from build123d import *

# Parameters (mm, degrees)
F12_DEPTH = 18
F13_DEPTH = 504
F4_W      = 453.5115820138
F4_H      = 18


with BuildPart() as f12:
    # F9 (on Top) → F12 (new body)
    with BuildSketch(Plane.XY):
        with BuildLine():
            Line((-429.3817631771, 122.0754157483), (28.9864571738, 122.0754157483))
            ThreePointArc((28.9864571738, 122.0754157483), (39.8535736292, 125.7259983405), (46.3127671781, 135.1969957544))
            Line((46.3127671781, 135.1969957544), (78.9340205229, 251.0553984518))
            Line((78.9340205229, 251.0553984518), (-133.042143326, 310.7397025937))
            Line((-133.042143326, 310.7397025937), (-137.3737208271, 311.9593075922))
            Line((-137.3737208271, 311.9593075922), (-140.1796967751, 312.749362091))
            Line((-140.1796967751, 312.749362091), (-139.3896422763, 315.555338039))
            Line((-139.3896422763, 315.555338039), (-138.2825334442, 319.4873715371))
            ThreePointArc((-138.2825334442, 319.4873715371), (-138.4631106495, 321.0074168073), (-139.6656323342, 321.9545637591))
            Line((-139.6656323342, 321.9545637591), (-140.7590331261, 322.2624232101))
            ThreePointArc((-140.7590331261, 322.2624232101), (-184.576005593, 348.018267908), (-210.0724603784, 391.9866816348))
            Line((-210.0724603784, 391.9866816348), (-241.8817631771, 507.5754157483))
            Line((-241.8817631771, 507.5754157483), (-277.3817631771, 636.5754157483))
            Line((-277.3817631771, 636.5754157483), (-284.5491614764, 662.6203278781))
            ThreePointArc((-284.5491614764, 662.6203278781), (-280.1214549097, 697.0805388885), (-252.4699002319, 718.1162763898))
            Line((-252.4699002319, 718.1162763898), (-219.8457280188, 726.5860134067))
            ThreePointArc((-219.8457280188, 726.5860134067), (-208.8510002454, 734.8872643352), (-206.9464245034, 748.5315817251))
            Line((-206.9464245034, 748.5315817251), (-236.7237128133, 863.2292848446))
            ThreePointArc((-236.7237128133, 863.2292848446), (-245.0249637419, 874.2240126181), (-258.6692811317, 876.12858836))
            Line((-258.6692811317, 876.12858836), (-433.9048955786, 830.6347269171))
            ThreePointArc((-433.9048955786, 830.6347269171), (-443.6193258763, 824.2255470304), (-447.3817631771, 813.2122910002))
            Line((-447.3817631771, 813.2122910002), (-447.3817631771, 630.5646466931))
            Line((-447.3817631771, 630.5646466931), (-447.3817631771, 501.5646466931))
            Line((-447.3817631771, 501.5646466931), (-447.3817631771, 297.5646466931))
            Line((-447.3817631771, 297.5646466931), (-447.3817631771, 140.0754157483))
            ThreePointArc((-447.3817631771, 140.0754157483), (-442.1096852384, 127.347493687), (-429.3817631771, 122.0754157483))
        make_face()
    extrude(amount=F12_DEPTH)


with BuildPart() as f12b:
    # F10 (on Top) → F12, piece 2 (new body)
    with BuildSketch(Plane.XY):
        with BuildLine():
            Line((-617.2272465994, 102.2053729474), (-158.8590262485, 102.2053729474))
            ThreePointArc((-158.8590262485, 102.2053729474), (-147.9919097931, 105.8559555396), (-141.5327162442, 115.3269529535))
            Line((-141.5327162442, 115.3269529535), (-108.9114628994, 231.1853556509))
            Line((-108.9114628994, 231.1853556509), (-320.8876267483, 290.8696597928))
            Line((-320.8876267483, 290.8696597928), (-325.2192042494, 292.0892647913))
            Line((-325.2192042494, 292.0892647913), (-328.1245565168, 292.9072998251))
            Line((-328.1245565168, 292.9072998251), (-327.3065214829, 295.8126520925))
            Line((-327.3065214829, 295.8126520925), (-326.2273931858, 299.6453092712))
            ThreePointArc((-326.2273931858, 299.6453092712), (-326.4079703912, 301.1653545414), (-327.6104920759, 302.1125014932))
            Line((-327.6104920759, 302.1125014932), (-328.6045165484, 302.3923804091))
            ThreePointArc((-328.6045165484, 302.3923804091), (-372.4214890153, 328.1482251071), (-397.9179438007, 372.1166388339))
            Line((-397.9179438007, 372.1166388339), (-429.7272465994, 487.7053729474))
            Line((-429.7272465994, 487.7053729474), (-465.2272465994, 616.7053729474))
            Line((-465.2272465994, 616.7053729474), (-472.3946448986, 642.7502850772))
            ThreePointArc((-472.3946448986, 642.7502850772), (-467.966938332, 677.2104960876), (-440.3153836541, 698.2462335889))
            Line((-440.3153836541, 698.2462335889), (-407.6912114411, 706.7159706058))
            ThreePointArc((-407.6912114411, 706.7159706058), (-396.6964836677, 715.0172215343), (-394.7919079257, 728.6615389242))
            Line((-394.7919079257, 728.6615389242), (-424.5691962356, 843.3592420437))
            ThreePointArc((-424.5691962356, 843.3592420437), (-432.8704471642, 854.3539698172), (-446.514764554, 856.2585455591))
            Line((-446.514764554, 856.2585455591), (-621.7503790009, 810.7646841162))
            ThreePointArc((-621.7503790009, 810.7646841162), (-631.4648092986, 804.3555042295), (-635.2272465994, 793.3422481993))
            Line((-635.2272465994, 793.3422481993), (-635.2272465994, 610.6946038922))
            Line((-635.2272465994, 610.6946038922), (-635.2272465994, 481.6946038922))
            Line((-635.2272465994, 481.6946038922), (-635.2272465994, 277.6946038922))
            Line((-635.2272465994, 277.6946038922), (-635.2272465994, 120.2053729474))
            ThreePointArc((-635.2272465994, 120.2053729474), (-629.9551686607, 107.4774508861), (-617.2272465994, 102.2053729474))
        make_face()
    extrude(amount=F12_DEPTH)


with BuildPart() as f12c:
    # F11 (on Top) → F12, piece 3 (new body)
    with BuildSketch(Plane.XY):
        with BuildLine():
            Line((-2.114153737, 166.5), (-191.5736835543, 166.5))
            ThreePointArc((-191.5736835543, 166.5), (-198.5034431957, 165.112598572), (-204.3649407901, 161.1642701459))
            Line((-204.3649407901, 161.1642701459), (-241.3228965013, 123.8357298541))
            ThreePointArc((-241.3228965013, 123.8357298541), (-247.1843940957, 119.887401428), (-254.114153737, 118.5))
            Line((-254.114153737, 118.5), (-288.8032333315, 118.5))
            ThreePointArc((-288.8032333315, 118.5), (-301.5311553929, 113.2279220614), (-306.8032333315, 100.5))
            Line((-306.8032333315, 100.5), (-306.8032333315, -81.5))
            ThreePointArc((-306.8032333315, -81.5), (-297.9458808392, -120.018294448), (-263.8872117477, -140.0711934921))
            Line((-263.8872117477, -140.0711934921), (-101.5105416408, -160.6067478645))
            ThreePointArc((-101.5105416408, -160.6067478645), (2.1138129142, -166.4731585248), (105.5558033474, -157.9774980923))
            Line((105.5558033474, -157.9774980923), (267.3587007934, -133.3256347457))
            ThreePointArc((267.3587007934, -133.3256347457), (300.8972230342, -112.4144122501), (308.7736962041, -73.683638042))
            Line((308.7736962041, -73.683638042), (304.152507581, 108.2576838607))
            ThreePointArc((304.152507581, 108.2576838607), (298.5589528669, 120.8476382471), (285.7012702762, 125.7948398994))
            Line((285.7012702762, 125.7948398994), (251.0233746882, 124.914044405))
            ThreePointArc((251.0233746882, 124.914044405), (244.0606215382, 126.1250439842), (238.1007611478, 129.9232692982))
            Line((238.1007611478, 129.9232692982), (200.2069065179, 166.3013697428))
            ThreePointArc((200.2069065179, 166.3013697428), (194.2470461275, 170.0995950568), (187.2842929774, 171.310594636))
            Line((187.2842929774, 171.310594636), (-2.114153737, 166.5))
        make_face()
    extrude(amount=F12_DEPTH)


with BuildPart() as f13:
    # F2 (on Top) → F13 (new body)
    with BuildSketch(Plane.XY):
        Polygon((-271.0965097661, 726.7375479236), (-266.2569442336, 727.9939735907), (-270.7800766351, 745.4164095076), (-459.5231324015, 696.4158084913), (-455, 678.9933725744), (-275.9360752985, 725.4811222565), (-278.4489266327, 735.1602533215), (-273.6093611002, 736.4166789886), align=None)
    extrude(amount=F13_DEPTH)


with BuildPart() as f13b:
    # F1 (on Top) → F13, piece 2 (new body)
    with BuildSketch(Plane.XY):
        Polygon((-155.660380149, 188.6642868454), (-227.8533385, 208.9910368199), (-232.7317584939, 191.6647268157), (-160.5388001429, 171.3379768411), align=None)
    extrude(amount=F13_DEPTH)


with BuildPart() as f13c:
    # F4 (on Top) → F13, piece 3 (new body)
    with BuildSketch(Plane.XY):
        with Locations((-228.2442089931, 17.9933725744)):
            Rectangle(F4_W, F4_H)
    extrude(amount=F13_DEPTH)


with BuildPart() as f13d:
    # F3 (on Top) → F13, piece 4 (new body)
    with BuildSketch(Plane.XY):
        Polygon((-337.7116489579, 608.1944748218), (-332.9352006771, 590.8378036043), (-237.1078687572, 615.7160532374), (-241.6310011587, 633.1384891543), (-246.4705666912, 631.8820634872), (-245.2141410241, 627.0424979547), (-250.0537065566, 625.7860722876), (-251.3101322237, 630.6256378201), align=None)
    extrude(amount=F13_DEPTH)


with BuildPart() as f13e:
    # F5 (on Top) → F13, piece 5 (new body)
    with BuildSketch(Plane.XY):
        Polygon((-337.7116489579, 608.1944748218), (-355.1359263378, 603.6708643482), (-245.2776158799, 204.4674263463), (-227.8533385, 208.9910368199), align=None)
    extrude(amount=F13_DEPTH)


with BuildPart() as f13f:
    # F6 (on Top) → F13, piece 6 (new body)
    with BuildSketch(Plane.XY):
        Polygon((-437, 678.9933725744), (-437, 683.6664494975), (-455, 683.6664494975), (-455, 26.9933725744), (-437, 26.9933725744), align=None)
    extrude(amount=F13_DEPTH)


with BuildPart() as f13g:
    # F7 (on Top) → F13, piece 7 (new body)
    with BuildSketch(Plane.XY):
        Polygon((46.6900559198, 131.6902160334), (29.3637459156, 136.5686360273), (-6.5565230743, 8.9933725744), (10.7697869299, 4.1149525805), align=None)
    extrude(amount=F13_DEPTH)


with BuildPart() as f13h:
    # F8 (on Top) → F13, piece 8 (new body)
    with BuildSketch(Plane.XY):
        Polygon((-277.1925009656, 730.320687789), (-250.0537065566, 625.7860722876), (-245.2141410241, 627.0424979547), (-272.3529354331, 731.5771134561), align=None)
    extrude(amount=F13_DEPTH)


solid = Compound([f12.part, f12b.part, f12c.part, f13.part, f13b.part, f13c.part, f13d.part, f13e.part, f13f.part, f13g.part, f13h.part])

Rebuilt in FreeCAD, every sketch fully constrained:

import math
import FreeCAD as App
import Part
import Sketcher
from FreeCAD import Vector


def add_polygon(sketch, points):
    """Adds a closed chain of lines whose ends are joined by coincident constraints."""
    first, n = sketch.GeometryCount, len(points)
    for a, b in zip(points, points[1:] + points[:1]):
        sketch.addGeometry(Part.LineSegment(App.Vector(*a, 0), App.Vector(*b, 0)), False)
    for i in range(n):
        sketch.addConstraint(Sketcher.Constraint("Coincident", first + i, 2, first + (i + 1) % n, 1))

doc = App.newDocument("Part")
body = doc.addObject("PartDesign::Body", "Body")

# Sketch on XY plane
sketch1 = doc.addObject("Sketcher::SketchObject", "Sketch")
body.addObject(sketch1)
sketch1.AttachmentSupport = (doc.XY_Plane, [""])
sketch1.MapMode = "FlatFace"
sketch1.addGeometry(Part.LineSegment(Vector(-429.381763, 122.075416, 0), Vector(28.986457, 122.075416, 0)), False)
sketch1.addGeometry(Part.ArcOfCircle(Part.Circle(Vector(28.986457, 140.075416, 0), Vector(0, 0, 1), 18), math.radians(-90), math.radians(-15.72517)), False)
sketch1.addGeometry(Part.LineSegment(Vector(46.312767, 135.196996, 0), Vector(78.934021, 251.055398, 0)), False)
sketch1.addGeometry(Part.LineSegment(Vector(78.934021, 251.055398, 0), Vector(-133.042143, 310.739703, 0)), False)
sketch1.addGeometry(Part.LineSegment(Vector(-133.042143, 310.739703, 0), Vector(-137.373721, 311.959308, 0)), False)
sketch1.addGeometry(Part.LineSegment(Vector(-137.373721, 311.959308, 0), Vector(-140.179697, 312.749362, 0)), False)
sketch1.addGeometry(Part.LineSegment(Vector(-140.179697, 312.749362, 0), Vector(-139.389642, 315.555338, 0)), False)
sketch1.addGeometry(Part.LineSegment(Vector(-139.389642, 315.555338, 0), Vector(-138.282533, 319.487372, 0)), False)
sketch1.addGeometry(Part.ArcOfCircle(Part.Circle(Vector(-140.207679, 320.029418, 0), Vector(0, 0, 1), 2), math.radians(-15.72517), math.radians(74.27483)), False)
sketch1.addGeometry(Part.LineSegment(Vector(-139.665632, 321.954564, 0), Vector(-140.759033, 322.262423, 0)), False)
sketch1.addGeometry(Part.ArcOfCircle(Part.Circle(Vector(-113.6567, 418.519701, 0), Vector(0, 0, 1), 100), math.radians(-164.613426), math.radians(-105.72517)), False)
sketch1.addGeometry(Part.LineSegment(Vector(-210.07246, 391.986682, 0), Vector(-284.549161, 662.620328, 0)), False)
sketch1.addGeometry(Part.ArcOfCircle(Part.Circle(Vector(-241.162069, 674.560187, 0), Vector(0, 0, 1), 45), math.radians(104.553573), math.radians(195.386574)), False)
sketch1.addGeometry(Part.LineSegment(Vector(-252.4699, 718.116276, 0), Vector(-219.845728, 726.586013, 0)), False)
sketch1.addGeometry(Part.ArcOfCircle(Part.Circle(Vector(-224.36886, 744.008449, 0), Vector(0, 0, 1), 18), math.radians(-75.446427), math.radians(14.553573)), False)
sketch1.addGeometry(Part.LineSegment(Vector(-206.946425, 748.531582, 0), Vector(-236.723713, 863.229285, 0)), False)
sketch1.addGeometry(Part.ArcOfCircle(Part.Circle(Vector(-254.146149, 858.706152, 0), Vector(0, 0, 1), 18), math.radians(14.553573), math.radians(104.553573)), False)
sketch1.addGeometry(Part.LineSegment(Vector(-258.669281, 876.128588, 0), Vector(-433.904896, 830.634727, 0)), False)
sketch1.addGeometry(Part.ArcOfCircle(Part.Circle(Vector(-429.381763, 813.212291, 0), Vector(0, 0, 1), 18), math.radians(104.553573), math.radians(180)), False)
sketch1.addGeometry(Part.LineSegment(Vector(-447.381763, 813.212291, 0), Vector(-447.381763, 140.075416, 0)), False)
sketch1.addGeometry(Part.ArcOfCircle(Part.Circle(Vector(-429.381763, 140.075416, 0), Vector(0, 0, 1), 18), math.radians(180), math.radians(270)), False)
sketch1.addConstraint(Sketcher.Constraint("Coincident", 0, 2, 1, 1))
sketch1.addConstraint(Sketcher.Constraint("Coincident", 1, 2, 2, 1))
sketch1.addConstraint(Sketcher.Constraint("Coincident", 2, 2, 3, 1))
sketch1.addConstraint(Sketcher.Constraint("Coincident", 3, 2, 4, 1))
sketch1.addConstraint(Sketcher.Constraint("Coincident", 4, 2, 5, 1))
sketch1.addConstraint(Sketcher.Constraint("Coincident", 5, 2, 6, 1))
sketch1.addConstraint(Sketcher.Constraint("Coincident", 6, 2, 7, 1))
sketch1.addConstraint(Sketcher.Constraint("Coincident", 7, 2, 8, 1))
sketch1.addConstraint(Sketcher.Constraint("Coincident", 8, 2, 9, 1))
sketch1.addConstraint(Sketcher.Constraint("Coincident", 9, 2, 10, 2))
sketch1.addConstraint(Sketcher.Constraint("Coincident", 10, 1, 11, 1))
sketch1.addConstraint(Sketcher.Constraint("Coincident", 11, 2, 12, 2))
sketch1.addConstraint(Sketcher.Constraint("Coincident", 12, 1, 13, 1))
sketch1.addConstraint(Sketcher.Constraint("Coincident", 13, 2, 14, 1))
sketch1.addConstraint(Sketcher.Constraint("Coincident", 14, 2, 15, 1))
sketch1.addConstraint(Sketcher.Constraint("Coincident", 15, 2, 16, 1))
sketch1.addConstraint(Sketcher.Constraint("Coincident", 16, 2, 17, 1))
sketch1.addConstraint(Sketcher.Constraint("Coincident", 17, 2, 18, 1))
sketch1.addConstraint(Sketcher.Constraint("Coincident", 18, 2, 19, 1))
sketch1.addConstraint(Sketcher.Constraint("Coincident", 19, 2, 20, 1))
sketch1.addConstraint(Sketcher.Constraint("Coincident", 20, 2, 0, 1))
sketch1.addConstraint(Sketcher.Constraint("Horizontal", 0))
sketch1.addConstraint(Sketcher.Constraint("Vertical", 19))
sketch1.addConstraint(Sketcher.Constraint("Radius", 1, 18.0))
sketch1.addConstraint(Sketcher.Constraint("Radius", 8, 2.0))
sketch1.addConstraint(Sketcher.Constraint("Radius", 10, 100.0))
sketch1.addConstraint(Sketcher.Constraint("Radius", 12, 45.0))
sketch1.addConstraint(Sketcher.Constraint("Radius", 14, 18.0))
sketch1.addConstraint(Sketcher.Constraint("Radius", 16, 18.0))
sketch1.addConstraint(Sketcher.Constraint("Radius", 18, 18.0))
sketch1.addConstraint(Sketcher.Constraint("Radius", 20, 18.0))
sketch1.addConstraint(Sketcher.Constraint("DistanceX", 19, 2, 20, 2, 18.0))
sketch1.addConstraint(Sketcher.Constraint("DistanceY", 20, 2, 19, 2, 18.0))
sketch1.addConstraint(Sketcher.Constraint("Distance", 4, 4.5))
sketch1.addConstraint(Sketcher.Constraint("Distance", 15, 118.5))
sketch1.addConstraint(Sketcher.Constraint("DistanceY", 3, 2, 10, 3, 107.779998))
sketch1.addConstraint(Sketcher.Constraint("DistanceX", 0, 1, 0, 2, 458.36822))
sketch1.addConstraint(Sketcher.Constraint("DistanceX", 10, 3, -1, 1, 113.6567))
sketch1.addConstraint(Sketcher.Constraint("DistanceY", -1, 1, 10, 3, 418.519701))
sketch1.addConstraint(Sketcher.Constraint("DistanceY", -1, 1, 2, 2, 251.055398))
sketch1.addConstraint(Sketcher.Constraint("DistanceX", 12, 1, -1, 1, 252.4699))
sketch1.addConstraint(Sketcher.Constraint("DistanceX", 8, 3, 2, 2, 219.1417))
sketch1.addConstraint(Sketcher.Constraint("DistanceX", 3, 2, 1, 3, 162.028601))
sketch1.addConstraint(Sketcher.Constraint("DistanceX", 3, 2, 0, 2, 162.028601))
sketch1.addConstraint(Sketcher.Constraint("DistanceX", 6, 2, 3, 2, 6.347499))
sketch1.addConstraint(Sketcher.Constraint("DistanceX", 8, 2, 7, 2, 1.383099))
sketch1.addConstraint(Sketcher.Constraint("DistanceY", 5, 2, 8, 2, 9.205202))
sketch1.addConstraint(Sketcher.Constraint("DistanceX", 9, 2, 8, 2, 1.093401))
sketch1.addConstraint(Sketcher.Constraint("DistanceX", 11, 2, 14, 3, 60.180301))
sketch1.addConstraint(Sketcher.Constraint("DistanceX", 18, 3, 11, 2, 144.832602))
sketch1.addConstraint(Sketcher.Constraint("DistanceX", 11, 2, 10, 1, 74.476701))
sketch1.addConstraint(Sketcher.Constraint("Distance", 5, 2.915079))
sketch1.addConstraint(Sketcher.Constraint("Distance", 6, 2.915079))
sketch1.addConstraint(Sketcher.Constraint("Distance", 7, 4.084921))
sketch1.addConstraint(Sketcher.Constraint("Distance", 17, 181.044779))
sketch1.addConstraint(Sketcher.Constraint("DistanceY", 19, 2, 19, 1, 673.136875))
sketch1.addConstraint(Sketcher.Constraint("DistanceX", 8, 3, -1, 1, 140.207679))
sketch1.addConstraint(Sketcher.Constraint("DistanceY", -1, 1, 8, 3, 320.029418))
sketch1.addConstraint(Sketcher.Constraint("DistanceX", 12, 3, -1, 1, 241.162069))
sketch1.addConstraint(Sketcher.Constraint("DistanceX", 14, 3, -1, 1, 224.36886))
sketch1.addConstraint(Sketcher.Constraint("DistanceY", -1, 1, 14, 3, 744.008449))
sketch1.addConstraint(Sketcher.Constraint("DistanceX", 16, 3, -1, 1, 254.146149))
sketch1.addConstraint(Sketcher.Constraint("DistanceY", -1, 1, 18, 3, 813.212291))
sketch1.addConstraint(Sketcher.Constraint("DistanceX", 4, 2, -1, 1, 137.373721))
sketch1.addConstraint(Sketcher.Constraint("DistanceX", 13, 2, -1, 1, 219.845728))
sketch1.addConstraint(Sketcher.Constraint("DistanceY", -1, 1, 14, 2, 748.531582))
sketch1.addConstraint(Sketcher.Constraint("DistanceX", 16, 2, -1, 1, 258.669281))
sketch1.addConstraint(Sketcher.Constraint("DistanceY", -1, 1, 16, 2, 876.128588))
sketch1.addConstraint(Sketcher.Constraint("DistanceY", -1, 1, 18, 2, 813.212291))
sketch1.addConstraint(Sketcher.Constraint("DistanceY", 8, 3, 12, 3, 354.530768))
sketch1.addConstraint(Sketcher.Constraint("DistanceX", 1, 3, 1, 2, 17.32631))
pad1 = doc.addObject("PartDesign::Pad", "Pad")
body.addObject(pad1)
pad1.Profile = sketch1
pad1.Length = 18
body2 = doc.addObject("PartDesign::Body", "Body001")

# Sketch on XY plane
sketch2 = doc.addObject("Sketcher::SketchObject", "Sketch001")
body2.addObject(sketch2)
sketch2.AttachmentSupport = (doc.getObject("XY_Plane001"), [""])
sketch2.MapMode = "FlatFace"
sketch2.addGeometry(Part.LineSegment(Vector(-617.2, 102.2, 0), Vector(-158.9, 102.2, 0)), False)
sketch2.addGeometry(Part.ArcOfCircle(Part.Circle(Vector(-158.9, 120.2, 0), Vector(0, 0, 1), 18), math.radians(-90), math.radians(-16)), False)
sketch2.addGeometry(Part.LineSegment(Vector(-141.5, 115.3, 0), Vector(-108.9, 231.2, 0)), False)
sketch2.addGeometry(Part.LineSegment(Vector(-108.9, 231.2, 0), Vector(-320.9, 290.9, 0)), False)
sketch2.addGeometry(Part.LineSegment(Vector(-320.9, 290.9, 0), Vector(-325.2, 292.1, 0)), False)
sketch2.addGeometry(Part.LineSegment(Vector(-325.2, 292.1, 0), Vector(-328.1, 292.9, 0)), False)
sketch2.addGeometry(Part.LineSegment(Vector(-328.1, 292.9, 0), Vector(-327.3, 295.8, 0)), False)
sketch2.addGeometry(Part.LineSegment(Vector(-327.3, 295.8, 0), Vector(-326.2, 299.6, 0)), False)
sketch2.addGeometry(Part.ArcOfCircle(Part.Circle(Vector(-328.2, 300.2, 0), Vector(0, 0, 1), 2), math.radians(-16), math.radians(74)), False)
sketch2.addGeometry(Part.LineSegment(Vector(-327.6, 302.1, 0), Vector(-328.6, 302.4, 0)), False)
sketch2.addGeometry(Part.ArcOfCircle(Part.Circle(Vector(-301.5, 398.6, 0), Vector(0, 0, 1), 100), math.radians(-165), math.radians(-106)), False)
sketch2.addGeometry(Part.LineSegment(Vector(-397.9, 372.1, 0), Vector(-465.2, 616.7, 0)), False)
sketch2.addGeometry(Part.LineSegment(Vector(-465.2, 616.7, 0), Vector(-472.4, 642.8, 0)), False)
sketch2.addGeometry(Part.ArcOfCircle(Part.Circle(Vector(-429, 654.7, 0), Vector(0, 0, 1), 45), math.radians(105), math.radians(195)), False)
sketch2.addGeometry(Part.LineSegment(Vector(-440.3, 698.2, 0), Vector(-407.7, 706.7, 0)), False)
sketch2.addGeometry(Part.ArcOfCircle(Part.Circle(Vector(-412.2, 724.1, 0), Vector(0, 0, 1), 18), math.radians(-75), math.radians(15)), False)
sketch2.addGeometry(Part.LineSegment(Vector(-394.8, 728.7, 0), Vector(-424.6, 843.4, 0)), False)
sketch2.addGeometry(Part.ArcOfCircle(Part.Circle(Vector(-442, 838.8, 0), Vector(0, 0, 1), 18), math.radians(15), math.radians(105)), False)
sketch2.addGeometry(Part.LineSegment(Vector(-446.5, 856.3, 0), Vector(-621.8, 810.8, 0)), False)
sketch2.addGeometry(Part.ArcOfCircle(Part.Circle(Vector(-617.2, 793.3, 0), Vector(0, 0, 1), 18), math.radians(105), math.radians(180)), False)
sketch2.addGeometry(Part.LineSegment(Vector(-635.2, 793.3, 0), Vector(-635.2, 120.2, 0)), False)
sketch2.addGeometry(Part.ArcOfCircle(Part.Circle(Vector(-617.2, 120.2, 0), Vector(0, 0, 1), 18), math.radians(-180), math.radians(-90)), False)
sketch2.addConstraint(Sketcher.Constraint("Tangent", 0, 2, 1, 1))
sketch2.addConstraint(Sketcher.Constraint("Tangent", 1, 2, 2, 1))
sketch2.addConstraint(Sketcher.Constraint("Coincident", 2, 2, 3, 1))
sketch2.addConstraint(Sketcher.Constraint("Coincident", 3, 2, 4, 1))
sketch2.addConstraint(Sketcher.Constraint("Coincident", 4, 2, 5, 1))
sketch2.addConstraint(Sketcher.Constraint("Coincident", 5, 2, 6, 1))
sketch2.addConstraint(Sketcher.Constraint("Coincident", 6, 2, 7, 1))
sketch2.addConstraint(Sketcher.Constraint("Tangent", 7, 2, 8, 1))
sketch2.addConstraint(Sketcher.Constraint("Tangent", 8, 2, 9, 1))
sketch2.addConstraint(Sketcher.Constraint("Tangent", 9, 2, 10, 2))
sketch2.addConstraint(Sketcher.Constraint("Tangent", 10, 1, 11, 1))
sketch2.addConstraint(Sketcher.Constraint("Coincident", 11, 2, 12, 1))
sketch2.addConstraint(Sketcher.Constraint("Tangent", 12, 2, 13, 2))
sketch2.addConstraint(Sketcher.Constraint("Tangent", 13, 1, 14, 1))
sketch2.addConstraint(Sketcher.Constraint("Tangent", 14, 2, 15, 1))
sketch2.addConstraint(Sketcher.Constraint("Tangent", 15, 2, 16, 1))
sketch2.addConstraint(Sketcher.Constraint("Tangent", 16, 2, 17, 1))
sketch2.addConstraint(Sketcher.Constraint("Tangent", 17, 2, 18, 1))
sketch2.addConstraint(Sketcher.Constraint("Tangent", 18, 2, 19, 1))
sketch2.addConstraint(Sketcher.Constraint("Tangent", 19, 2, 20, 1))
sketch2.addConstraint(Sketcher.Constraint("Tangent", 20, 2, 21, 1))
sketch2.addConstraint(Sketcher.Constraint("Tangent", 21, 2, 0, 1))
sketch2.addConstraint(Sketcher.Constraint("Horizontal", 0))
sketch2.addConstraint(Sketcher.Constraint("Vertical", 20))
sketch2.addConstraint(Sketcher.Constraint("Equal", 1, 15))
sketch2.addConstraint(Sketcher.Constraint("Equal", 15, 17))
sketch2.addConstraint(Sketcher.Constraint("Equal", 17, 19))
sketch2.addConstraint(Sketcher.Constraint("Equal", 19, 21))
sketch2.addConstraint(Sketcher.Constraint("Perpendicular", 2, 3))
sketch2.addConstraint(Sketcher.Constraint("Parallel", 3, 4))
sketch2.addConstraint(Sketcher.Constraint("Parallel", 4, 5))
sketch2.addConstraint(Sketcher.Constraint("Perpendicular", 5, 6))
sketch2.addConstraint(Sketcher.Constraint("Parallel", 6, 7))
sketch2.addConstraint(Sketcher.Constraint("Perpendicular", 7, 9))
sketch2.addConstraint(Sketcher.Constraint("Parallel", 11, 12))
sketch2.addConstraint(Sketcher.Constraint("Perpendicular", 14, 16))
sketch2.addConstraint(Sketcher.Constraint("Perpendicular", 16, 18))
sketch2.addConstraint(Sketcher.Constraint("Equal", 5, 6))
sketch2.addConstraint(Sketcher.Constraint("Radius", 1, 18.0))
sketch2.addConstraint(Sketcher.Constraint("Radius", 8, 2.0))
sketch2.addConstraint(Sketcher.Constraint("Radius", 10, 100.0))
sketch2.addConstraint(Sketcher.Constraint("Radius", 13, 45.0))
sketch2.addConstraint(Sketcher.Constraint("DistanceX", 19, 3, 11, 2, 152.0))
sketch2.addConstraint(Sketcher.Constraint("Distance", 4, 4.5))
sketch2.addConstraint(Sketcher.Constraint("Distance", 16, 118.5))
sketch2.addConstraint(Sketcher.Constraint("DistanceY", 3, 2, 10, 3, 107.779998))
sketch2.addConstraint(Sketcher.Constraint("DistanceY", 2, 2, 8, 3, 69.002))
sketch2.addConstraint(Sketcher.Constraint("DistanceX", 0, 1, 0, 2, 458.36822))
sketch2.addConstraint(Sketcher.Constraint("DistanceY", -1, 1, 5, 2, 292.9073))
sketch2.addConstraint(Sketcher.Constraint("DistanceY", -1, 1, 8, 2, 302.112501))
sketch2.addConstraint(Sketcher.Constraint("DistanceX", 3, 2, 1, 3, 162.0286))
sketch2.addConstraint(Sketcher.Constraint("DistanceX", 12, 2, 11, 2, 7.167398))
sketch2.addConstraint(Sketcher.Constraint("DistanceX", 12, 2, 15, 3, 60.180301))
sketch2.addConstraint(Sketcher.Constraint("Distance", 5, 3.01832))
sketch2.addConstraint(Sketcher.Constraint("Distance", 11, 253.681279))
sketch2.addConstraint(Sketcher.Constraint("Distance", 18, 181.044779))
sketch2.addConstraint(Sketcher.Constraint("DistanceY", 20, 2, 20, 1, 673.136875))
sketch2.addConstraint(Sketcher.Constraint("DistanceX", 8, 3, -1, 1, 328.152539))
pad2 = doc.addObject("PartDesign::Pad", "Pad001")
body2.addObject(pad2)
pad2.Profile = sketch2
pad2.Length = 18
body3 = doc.addObject("PartDesign::Body", "Body002")

# Sketch on XY plane
sketch3 = doc.addObject("Sketcher::SketchObject", "Sketch002")
body3.addObject(sketch3)
sketch3.AttachmentSupport = (doc.getObject("XY_Plane002"), [""])
sketch3.MapMode = "FlatFace"
sketch3.addGeometry(Part.LineSegment(Vector(-2, 166, 0), Vector(-192, 166, 0)), False)
sketch3.addGeometry(Part.ArcOfCircle(Part.Circle(Vector(-192, 149, 0), Vector(0, 0, 1), 18), math.radians(90), math.radians(135)), False)
sketch3.addGeometry(Part.LineSegment(Vector(-204, 161, 0), Vector(-241, 124, 0)), False)
sketch3.addGeometry(Part.ArcOfCircle(Part.Circle(Vector(-254, 136, 0), Vector(0, 0, 1), 18), math.radians(-90), math.radians(-45)), False)
sketch3.addGeometry(Part.LineSegment(Vector(-254, 118, 0), Vector(-289, 118, 0)), False)
sketch3.addGeometry(Part.ArcOfCircle(Part.Circle(Vector(-289, 100, 0), Vector(0, 0, 1), 18), math.radians(90), math.radians(180)), False)
sketch3.addGeometry(Part.LineSegment(Vector(-307, 100, 0), Vector(-307, -82, 0)), False)
sketch3.addGeometry(Part.ArcOfCircle(Part.Circle(Vector(-258, -90, 0), Vector(0, 0, 1), 50), math.radians(170), math.radians(263)), False)
sketch3.addGeometry(Part.LineSegment(Vector(-264, -140, 0), Vector(-102, -161, 0)), False)
sketch3.addGeometry(Part.ArcOfCircle(Part.Circle(Vector(-7, 583, 0), Vector(0, 0, 1), 750), math.radians(-97.21), math.radians(-81.34)), False)
sketch3.addGeometry(Part.LineSegment(Vector(106, -158, 0), Vector(267, -133, 0)), False)
sketch3.addGeometry(Part.ArcOfCircle(Part.Circle(Vector(260, -84, 0), Vector(0, 0, 1), 50), math.radians(-81), math.radians(12)), False)
sketch3.addGeometry(Part.LineSegment(Vector(309, -74, 0), Vector(304, 108, 0)), False)
sketch3.addGeometry(Part.ArcOfCircle(Part.Circle(Vector(286, 108, 0), Vector(0, 0, 1), 18), math.radians(1), math.radians(91)), False)
sketch3.addGeometry(Part.LineSegment(Vector(286, 126, 0), Vector(251, 125, 0)), False)
sketch3.addGeometry(Part.ArcOfCircle(Part.Circle(Vector(251, 143, 0), Vector(0, 0, 1), 18), math.radians(-134), math.radians(-89)), False)
sketch3.addGeometry(Part.LineSegment(Vector(238, 130, 0), Vector(200, 166, 0)), False)
sketch3.addGeometry(Part.ArcOfCircle(Part.Circle(Vector(188, 153, 0), Vector(0, 0, 1), 18), math.radians(46), math.radians(91)), False)
sketch3.addGeometry(Part.LineSegment(Vector(187, 171, 0), Vector(-2, 166, 0)), False)
sketch3.addConstraint(Sketcher.Constraint("Tangent", 0, 2, 1, 1))
sketch3.addConstraint(Sketcher.Constraint("Tangent", 1, 2, 2, 1))
sketch3.addConstraint(Sketcher.Constraint("Tangent", 2, 2, 3, 2))
sketch3.addConstraint(Sketcher.Constraint("Tangent", 3, 1, 4, 1))
sketch3.addConstraint(Sketcher.Constraint("Tangent", 4, 2, 5, 1))
sketch3.addConstraint(Sketcher.Constraint("Tangent", 5, 2, 6, 1))
sketch3.addConstraint(Sketcher.Constraint("Coincident", 6, 2, 7, 1))
sketch3.addConstraint(Sketcher.Constraint("Tangent", 7, 2, 8, 1))
sketch3.addConstraint(Sketcher.Constraint("Tangent", 8, 2, 9, 1))
sketch3.addConstraint(Sketcher.Constraint("Tangent", 9, 2, 10, 1))
sketch3.addConstraint(Sketcher.Constraint("Tangent", 10, 2, 11, 1))
sketch3.addConstraint(Sketcher.Constraint("Coincident", 11, 2, 12, 1))
sketch3.addConstraint(Sketcher.Constraint("Tangent", 12, 2, 13, 1))
sketch3.addConstraint(Sketcher.Constraint("Tangent", 13, 2, 14, 1))
sketch3.addConstraint(Sketcher.Constraint("Tangent", 14, 2, 15, 2))
sketch3.addConstraint(Sketcher.Constraint("Tangent", 15, 1, 16, 1))
sketch3.addConstraint(Sketcher.Constraint("Tangent", 16, 2, 17, 1))
sketch3.addConstraint(Sketcher.Constraint("Tangent", 17, 2, 18, 1))
sketch3.addConstraint(Sketcher.Constraint("Coincident", 18, 2, 0, 1))
sketch3.addConstraint(Sketcher.Constraint("Horizontal", 0))
sketch3.addConstraint(Sketcher.Constraint("Horizontal", 4))
sketch3.addConstraint(Sketcher.Constraint("Vertical", 6))
sketch3.addConstraint(Sketcher.Constraint("Equal", 1, 3))
sketch3.addConstraint(Sketcher.Constraint("Equal", 3, 5))
sketch3.addConstraint(Sketcher.Constraint("Equal", 7, 11))
sketch3.addConstraint(Sketcher.Constraint("Equal", 5, 13))
sketch3.addConstraint(Sketcher.Constraint("Equal", 13, 15))
sketch3.addConstraint(Sketcher.Constraint("Equal", 15, 17))
sketch3.addConstraint(Sketcher.Constraint("Perpendicular", 12, 14))
sketch3.addConstraint(Sketcher.Constraint("Parallel", 14, 18))
sketch3.addConstraint(Sketcher.Constraint("Equal", 8, 10))
sketch3.addConstraint(Sketcher.Constraint("Equal", 2, 16))
sketch3.addConstraint(Sketcher.Constraint("Radius", 1, 18.0))
sketch3.addConstraint(Sketcher.Constraint("Radius", 7, 50.0))
sketch3.addConstraint(Sketcher.Constraint("Radius", 9, 750.0))
sketch3.addConstraint(Sketcher.Constraint("DistanceY", 6, 2, 6, 1, 182.0))
sketch3.addConstraint(Sketcher.Constraint("Distance", 12, 182.0))
sketch3.addConstraint(Sketcher.Constraint("DistanceY", 3, 3, 1, 3, 12.0))
sketch3.addConstraint(Sketcher.Constraint("DistanceY", -1, 1, 1, 3, 148.5))
sketch3.addConstraint(Sketcher.Constraint("DistanceX", 17, 3, 15, 3, 62.825))
sketch3.addConstraint(Sketcher.Constraint("DistanceX", 0, 2, 0, 1, 189.45953))
sketch3.addConstraint(Sketcher.Constraint("DistanceX", 4, 2, 4, 1, 34.68908))
sketch3.addConstraint(Sketcher.Constraint("DistanceY", 9, 2, -1, 1, 157.977498))
sketch3.addConstraint(Sketcher.Constraint("DistanceX", -1, 1, 10, 2, 267.358701))
sketch3.addConstraint(Sketcher.Constraint("DistanceX", 5, 3, 9, 3, 281.394599))
sketch3.addConstraint(Sketcher.Constraint("DistanceY", 13, 2, 15, 3, 17.113401))
sketch3.addConstraint(Sketcher.Constraint("DistanceY", 15, 1, 16, 2, 36.3781))
sketch3.addConstraint(Sketcher.Constraint("Distance", 8, 163.670071))
sketch3.addConstraint(Sketcher.Constraint("Distance", 14, 34.68908))
sketch3.addConstraint(Sketcher.Constraint("Distance", 18, 189.45953))
pad3 = doc.addObject("PartDesign::Pad", "Pad002")
body3.addObject(pad3)
pad3.Profile = sketch3
pad3.Length = 18
body4 = doc.addObject("PartDesign::Body", "Body003")

# Sketch on XY plane
sketch4 = doc.addObject("Sketcher::SketchObject", "Sketch003")
body4.addObject(sketch4)
sketch4.AttachmentSupport = (doc.getObject("XY_Plane003"), [""])
sketch4.MapMode = "FlatFace"
add_polygon(sketch4, [(-271.1, 726.7), (-266.3, 728), (-270.8, 745.4), (-459.5, 696.4), (-455, 679), (-275.9, 725.5), (-278.4, 735.2), (-273.6, 736.4)])  # lines 0-7
sketch4.addConstraint(Sketcher.Constraint("Perpendicular", 0, 1))
sketch4.addConstraint(Sketcher.Constraint("Perpendicular", 1, 2))
sketch4.addConstraint(Sketcher.Constraint("Perpendicular", 2, 3))
sketch4.addConstraint(Sketcher.Constraint("Perpendicular", 3, 4))
sketch4.addConstraint(Sketcher.Constraint("Perpendicular", 4, 5))
sketch4.addConstraint(Sketcher.Constraint("Perpendicular", 5, 6))
sketch4.addConstraint(Sketcher.Constraint("Perpendicular", 6, 7))
sketch4.addConstraint(Sketcher.Constraint("Equal", 1, 3))
sketch4.addConstraint(Sketcher.Constraint("Equal", 0, 6))
sketch4.addConstraint(Sketcher.Constraint("Distance", 0, 5.0))
sketch4.addConstraint(Sketcher.Constraint("Distance", 1, 18.0))
sketch4.addConstraint(Sketcher.Constraint("Distance", 2, 195.0))
sketch4.addConstraint(Sketcher.Constraint("Distance", 5, 10.0))
sketch4.addConstraint(Sketcher.Constraint("DistanceX", 3, 2, -1, 1, 455.0))
sketch4.addConstraint(Sketcher.Constraint("DistanceX", 4, 2, 1, 2, 5.155999))
sketch4.addConstraint(Sketcher.Constraint("DistanceY", -1, 1, 1, 2, 745.41641))
pad4 = doc.addObject("PartDesign::Pad", "Pad003")
body4.addObject(pad4)
pad4.Profile = sketch4
pad4.Length = 504
body5 = doc.addObject("PartDesign::Body", "Body004")

# Sketch on XY plane
sketch5 = doc.addObject("Sketcher::SketchObject", "Sketch004")
body5.addObject(sketch5)
sketch5.AttachmentSupport = (doc.getObject("XY_Plane004"), [""])
sketch5.MapMode = "FlatFace"
add_polygon(sketch5, [(-156, 189), (-228, 209), (-233, 192), (-161, 171)])  # lines 0-3
sketch5.addConstraint(Sketcher.Constraint("Perpendicular", 0, 1))
sketch5.addConstraint(Sketcher.Constraint("Perpendicular", 1, 2))
sketch5.addConstraint(Sketcher.Constraint("Perpendicular", 2, 3))
sketch5.addConstraint(Sketcher.Constraint("Distance", 0, 75.0))
sketch5.addConstraint(Sketcher.Constraint("Distance", 1, 18.0))
sketch5.addConstraint(Sketcher.Constraint("DistanceX", 2, 2, -1, 1, 160.5388))
sketch5.addConstraint(Sketcher.Constraint("DistanceX", 0, 2, -1, 1, 227.853339))
sketch5.addConstraint(Sketcher.Constraint("DistanceY", -1, 1, 0, 2, 208.991037))
pad5 = doc.addObject("PartDesign::Pad", "Pad004")
body5.addObject(pad5)
pad5.Profile = sketch5
pad5.Length = 504
body6 = doc.addObject("PartDesign::Body", "Body005")

# Sketch on XY plane
sketch6 = doc.addObject("Sketcher::SketchObject", "Sketch005")
body6.addObject(sketch6)
sketch6.AttachmentSupport = (doc.getObject("XY_Plane005"), [""])
sketch6.MapMode = "FlatFace"
add_polygon(sketch6, [(-455, 27), (-455, 9), (-1, 9), (-1, 27)])  # lines 0-3
sketch6.addConstraint(Sketcher.Constraint("Vertical", 0))
sketch6.addConstraint(Sketcher.Constraint("Horizontal", 1))
sketch6.addConstraint(Sketcher.Constraint("Vertical", 2))
sketch6.addConstraint(Sketcher.Constraint("Horizontal", 3))
sketch6.addConstraint(Sketcher.Constraint("DistanceY", 0, 2, 0, 1, 18.0))
sketch6.addConstraint(Sketcher.Constraint("DistanceX", 0, 2, -1, 1, 455.0))
sketch6.addConstraint(Sketcher.Constraint("DistanceX", 1, 1, 1, 2, 453.511582))
sketch6.addConstraint(Sketcher.Constraint("DistanceY", -1, 1, 0, 2, 8.993373))
pad6 = doc.addObject("PartDesign::Pad", "Pad005")
body6.addObject(pad6)
pad6.Profile = sketch6
pad6.Length = 504
body7 = doc.addObject("PartDesign::Body", "Body006")

# Sketch on XY plane
sketch7 = doc.addObject("Sketcher::SketchObject", "Sketch006")
body7.addObject(sketch7)
sketch7.AttachmentSupport = (doc.getObject("XY_Plane006"), [""])
sketch7.MapMode = "FlatFace"
add_polygon(sketch7, [(-337.7, 608.2), (-332.9, 590.8), (-237.1, 615.7), (-241.6, 633.1), (-246.5, 631.9), (-245.2, 627), (-250.1, 625.8), (-251.3, 630.6)])  # lines 0-7
sketch7.addConstraint(Sketcher.Constraint("Perpendicular", 1, 2))
sketch7.addConstraint(Sketcher.Constraint("Perpendicular", 2, 3))
sketch7.addConstraint(Sketcher.Constraint("Perpendicular", 3, 4))
sketch7.addConstraint(Sketcher.Constraint("Perpendicular", 4, 5))
sketch7.addConstraint(Sketcher.Constraint("Perpendicular", 5, 6))
sketch7.addConstraint(Sketcher.Constraint("Perpendicular", 6, 7))
sketch7.addConstraint(Sketcher.Constraint("Equal", 3, 4))
sketch7.addConstraint(Sketcher.Constraint("Equal", 4, 5))
sketch7.addConstraint(Sketcher.Constraint("Equal", 5, 6))
sketch7.addConstraint(Sketcher.Constraint("Distance", 2, 18.0))
sketch7.addConstraint(Sketcher.Constraint("Distance", 3, 5.0))
sketch7.addConstraint(Sketcher.Constraint("DistanceX", 2, 2, -1, 1, 241.631001))
sketch7.addConstraint(Sketcher.Constraint("DistanceX", 0, 2, -1, 1, 332.935201))
sketch7.addConstraint(Sketcher.Constraint("Distance", 7, 89.265778))
sketch7.addConstraint(Sketcher.Constraint("DistanceX", 1, 2, -1, 1, 237.107869))
sketch7.addConstraint(Sketcher.Constraint("DistanceY", -1, 1, 2, 2, 633.138489))
pad7 = doc.addObject("PartDesign::Pad", "Pad006")
body7.addObject(pad7)
pad7.Profile = sketch7
pad7.Length = 504
body8 = doc.addObject("PartDesign::Body", "Body007")

# Sketch on XY plane
sketch8 = doc.addObject("Sketcher::SketchObject", "Sketch007")
body8.addObject(sketch8)
sketch8.AttachmentSupport = (doc.getObject("XY_Plane007"), [""])
sketch8.MapMode = "FlatFace"
add_polygon(sketch8, [(-338, 608), (-355, 604), (-245, 204), (-228, 209)])  # lines 0-3
sketch8.addConstraint(Sketcher.Constraint("Parallel", 0, 2))
sketch8.addConstraint(Sketcher.Constraint("Parallel", 1, 3))
sketch8.addConstraint(Sketcher.Constraint("DistanceX", 2, 2, -1, 1, 227.853339))
sketch8.addConstraint(Sketcher.Constraint("DistanceX", 3, 2, -1, 1, 337.711649))
sketch8.addConstraint(Sketcher.Constraint("DistanceY", 1, 2, 0, 2, 399.203438))
sketch8.addConstraint(Sketcher.Constraint("DistanceY", 1, 2, 2, 2, 4.52361))
sketch8.addConstraint(Sketcher.Constraint("Distance", 0, 18.001903))
sketch8.addConstraint(Sketcher.Constraint("DistanceY", -1, 1, 0, 2, 603.670864))
pad8 = doc.addObject("PartDesign::Pad", "Pad007")
body8.addObject(pad8)
pad8.Profile = sketch8
pad8.Length = 504
body9 = doc.addObject("PartDesign::Body", "Body008")

# Sketch on XY plane
sketch9 = doc.addObject("Sketcher::SketchObject", "Sketch008")
body9.addObject(sketch9)
sketch9.AttachmentSupport = (doc.getObject("XY_Plane008"), [""])
sketch9.MapMode = "FlatFace"
add_polygon(sketch9, [(-437, 684), (-455, 684), (-455, 27), (-437, 27)])  # lines 0-3
sketch9.addConstraint(Sketcher.Constraint("Horizontal", 0))
sketch9.addConstraint(Sketcher.Constraint("Vertical", 1))
sketch9.addConstraint(Sketcher.Constraint("Horizontal", 2))
sketch9.addConstraint(Sketcher.Constraint("Vertical", 3))
sketch9.addConstraint(Sketcher.Constraint("DistanceX", 0, 2, 0, 1, 18.0))
sketch9.addConstraint(Sketcher.Constraint("DistanceX", 0, 2, -1, 1, 455.0))
sketch9.addConstraint(Sketcher.Constraint("DistanceY", 1, 2, 1, 1, 656.673077))
sketch9.addConstraint(Sketcher.Constraint("DistanceY", -1, 1, 0, 2, 683.666449))
pad9 = doc.addObject("PartDesign::Pad", "Pad008")
body9.addObject(pad9)
pad9.Profile = sketch9
pad9.Length = 504
body10 = doc.addObject("PartDesign::Body", "Body009")

# Sketch on XY plane
sketch10 = doc.addObject("Sketcher::SketchObject", "Sketch009")
body10.addObject(sketch10)
sketch10.AttachmentSupport = (doc.getObject("XY_Plane009"), [""])
sketch10.MapMode = "FlatFace"
add_polygon(sketch10, [(47, 132), (29, 137), (-7, 9), (11, 4)])  # lines 0-3
sketch10.addConstraint(Sketcher.Constraint("Perpendicular", 0, 1))
sketch10.addConstraint(Sketcher.Constraint("Perpendicular", 1, 2))
sketch10.addConstraint(Sketcher.Constraint("Perpendicular", 2, 3))
sketch10.addConstraint(Sketcher.Constraint("Distance", 0, 18.0))
sketch10.addConstraint(Sketcher.Constraint("DistanceX", 1, 2, 0, 2, 35.920269))
sketch10.addConstraint(Sketcher.Constraint("DistanceX", 1, 2, 2, 2, 17.32631))
sketch10.addConstraint(Sketcher.Constraint("DistanceX", -1, 1, 0, 2, 29.363746))
sketch10.addConstraint(Sketcher.Constraint("DistanceY", -1, 1, 0, 2, 136.568636))
pad10 = doc.addObject("PartDesign::Pad", "Pad009")
body10.addObject(pad10)
pad10.Profile = sketch10
pad10.Length = 504
body11 = doc.addObject("PartDesign::Body", "Body010")

# Sketch on XY plane
sketch11 = doc.addObject("Sketcher::SketchObject", "Sketch010")
body11.addObject(sketch11)
sketch11.AttachmentSupport = (doc.getObject("XY_Plane010"), [""])
sketch11.MapMode = "FlatFace"
add_polygon(sketch11, [(-277, 730), (-250, 626), (-245, 627), (-272, 732)])  # lines 0-3
sketch11.addConstraint(Sketcher.Constraint("Perpendicular", 0, 1))
sketch11.addConstraint(Sketcher.Constraint("Perpendicular", 1, 2))
sketch11.addConstraint(Sketcher.Constraint("Perpendicular", 2, 3))
sketch11.addConstraint(Sketcher.Constraint("Distance", 0, 108.0))
sketch11.addConstraint(Sketcher.Constraint("Distance", 1, 5.0))
sketch11.addConstraint(Sketcher.Constraint("DistanceX", 3, 2, -1, 1, 277.192501))
sketch11.addConstraint(Sketcher.Constraint("DistanceX", 1, 2, -1, 1, 245.214141))
sketch11.addConstraint(Sketcher.Constraint("DistanceY", -1, 1, 0, 2, 625.786072))
pad11 = doc.addObject("PartDesign::Pad", "Pad010")
body11.addObject(pad11)
pad11.Profile = sketch11
pad11.Length = 504

doc.recompute()
